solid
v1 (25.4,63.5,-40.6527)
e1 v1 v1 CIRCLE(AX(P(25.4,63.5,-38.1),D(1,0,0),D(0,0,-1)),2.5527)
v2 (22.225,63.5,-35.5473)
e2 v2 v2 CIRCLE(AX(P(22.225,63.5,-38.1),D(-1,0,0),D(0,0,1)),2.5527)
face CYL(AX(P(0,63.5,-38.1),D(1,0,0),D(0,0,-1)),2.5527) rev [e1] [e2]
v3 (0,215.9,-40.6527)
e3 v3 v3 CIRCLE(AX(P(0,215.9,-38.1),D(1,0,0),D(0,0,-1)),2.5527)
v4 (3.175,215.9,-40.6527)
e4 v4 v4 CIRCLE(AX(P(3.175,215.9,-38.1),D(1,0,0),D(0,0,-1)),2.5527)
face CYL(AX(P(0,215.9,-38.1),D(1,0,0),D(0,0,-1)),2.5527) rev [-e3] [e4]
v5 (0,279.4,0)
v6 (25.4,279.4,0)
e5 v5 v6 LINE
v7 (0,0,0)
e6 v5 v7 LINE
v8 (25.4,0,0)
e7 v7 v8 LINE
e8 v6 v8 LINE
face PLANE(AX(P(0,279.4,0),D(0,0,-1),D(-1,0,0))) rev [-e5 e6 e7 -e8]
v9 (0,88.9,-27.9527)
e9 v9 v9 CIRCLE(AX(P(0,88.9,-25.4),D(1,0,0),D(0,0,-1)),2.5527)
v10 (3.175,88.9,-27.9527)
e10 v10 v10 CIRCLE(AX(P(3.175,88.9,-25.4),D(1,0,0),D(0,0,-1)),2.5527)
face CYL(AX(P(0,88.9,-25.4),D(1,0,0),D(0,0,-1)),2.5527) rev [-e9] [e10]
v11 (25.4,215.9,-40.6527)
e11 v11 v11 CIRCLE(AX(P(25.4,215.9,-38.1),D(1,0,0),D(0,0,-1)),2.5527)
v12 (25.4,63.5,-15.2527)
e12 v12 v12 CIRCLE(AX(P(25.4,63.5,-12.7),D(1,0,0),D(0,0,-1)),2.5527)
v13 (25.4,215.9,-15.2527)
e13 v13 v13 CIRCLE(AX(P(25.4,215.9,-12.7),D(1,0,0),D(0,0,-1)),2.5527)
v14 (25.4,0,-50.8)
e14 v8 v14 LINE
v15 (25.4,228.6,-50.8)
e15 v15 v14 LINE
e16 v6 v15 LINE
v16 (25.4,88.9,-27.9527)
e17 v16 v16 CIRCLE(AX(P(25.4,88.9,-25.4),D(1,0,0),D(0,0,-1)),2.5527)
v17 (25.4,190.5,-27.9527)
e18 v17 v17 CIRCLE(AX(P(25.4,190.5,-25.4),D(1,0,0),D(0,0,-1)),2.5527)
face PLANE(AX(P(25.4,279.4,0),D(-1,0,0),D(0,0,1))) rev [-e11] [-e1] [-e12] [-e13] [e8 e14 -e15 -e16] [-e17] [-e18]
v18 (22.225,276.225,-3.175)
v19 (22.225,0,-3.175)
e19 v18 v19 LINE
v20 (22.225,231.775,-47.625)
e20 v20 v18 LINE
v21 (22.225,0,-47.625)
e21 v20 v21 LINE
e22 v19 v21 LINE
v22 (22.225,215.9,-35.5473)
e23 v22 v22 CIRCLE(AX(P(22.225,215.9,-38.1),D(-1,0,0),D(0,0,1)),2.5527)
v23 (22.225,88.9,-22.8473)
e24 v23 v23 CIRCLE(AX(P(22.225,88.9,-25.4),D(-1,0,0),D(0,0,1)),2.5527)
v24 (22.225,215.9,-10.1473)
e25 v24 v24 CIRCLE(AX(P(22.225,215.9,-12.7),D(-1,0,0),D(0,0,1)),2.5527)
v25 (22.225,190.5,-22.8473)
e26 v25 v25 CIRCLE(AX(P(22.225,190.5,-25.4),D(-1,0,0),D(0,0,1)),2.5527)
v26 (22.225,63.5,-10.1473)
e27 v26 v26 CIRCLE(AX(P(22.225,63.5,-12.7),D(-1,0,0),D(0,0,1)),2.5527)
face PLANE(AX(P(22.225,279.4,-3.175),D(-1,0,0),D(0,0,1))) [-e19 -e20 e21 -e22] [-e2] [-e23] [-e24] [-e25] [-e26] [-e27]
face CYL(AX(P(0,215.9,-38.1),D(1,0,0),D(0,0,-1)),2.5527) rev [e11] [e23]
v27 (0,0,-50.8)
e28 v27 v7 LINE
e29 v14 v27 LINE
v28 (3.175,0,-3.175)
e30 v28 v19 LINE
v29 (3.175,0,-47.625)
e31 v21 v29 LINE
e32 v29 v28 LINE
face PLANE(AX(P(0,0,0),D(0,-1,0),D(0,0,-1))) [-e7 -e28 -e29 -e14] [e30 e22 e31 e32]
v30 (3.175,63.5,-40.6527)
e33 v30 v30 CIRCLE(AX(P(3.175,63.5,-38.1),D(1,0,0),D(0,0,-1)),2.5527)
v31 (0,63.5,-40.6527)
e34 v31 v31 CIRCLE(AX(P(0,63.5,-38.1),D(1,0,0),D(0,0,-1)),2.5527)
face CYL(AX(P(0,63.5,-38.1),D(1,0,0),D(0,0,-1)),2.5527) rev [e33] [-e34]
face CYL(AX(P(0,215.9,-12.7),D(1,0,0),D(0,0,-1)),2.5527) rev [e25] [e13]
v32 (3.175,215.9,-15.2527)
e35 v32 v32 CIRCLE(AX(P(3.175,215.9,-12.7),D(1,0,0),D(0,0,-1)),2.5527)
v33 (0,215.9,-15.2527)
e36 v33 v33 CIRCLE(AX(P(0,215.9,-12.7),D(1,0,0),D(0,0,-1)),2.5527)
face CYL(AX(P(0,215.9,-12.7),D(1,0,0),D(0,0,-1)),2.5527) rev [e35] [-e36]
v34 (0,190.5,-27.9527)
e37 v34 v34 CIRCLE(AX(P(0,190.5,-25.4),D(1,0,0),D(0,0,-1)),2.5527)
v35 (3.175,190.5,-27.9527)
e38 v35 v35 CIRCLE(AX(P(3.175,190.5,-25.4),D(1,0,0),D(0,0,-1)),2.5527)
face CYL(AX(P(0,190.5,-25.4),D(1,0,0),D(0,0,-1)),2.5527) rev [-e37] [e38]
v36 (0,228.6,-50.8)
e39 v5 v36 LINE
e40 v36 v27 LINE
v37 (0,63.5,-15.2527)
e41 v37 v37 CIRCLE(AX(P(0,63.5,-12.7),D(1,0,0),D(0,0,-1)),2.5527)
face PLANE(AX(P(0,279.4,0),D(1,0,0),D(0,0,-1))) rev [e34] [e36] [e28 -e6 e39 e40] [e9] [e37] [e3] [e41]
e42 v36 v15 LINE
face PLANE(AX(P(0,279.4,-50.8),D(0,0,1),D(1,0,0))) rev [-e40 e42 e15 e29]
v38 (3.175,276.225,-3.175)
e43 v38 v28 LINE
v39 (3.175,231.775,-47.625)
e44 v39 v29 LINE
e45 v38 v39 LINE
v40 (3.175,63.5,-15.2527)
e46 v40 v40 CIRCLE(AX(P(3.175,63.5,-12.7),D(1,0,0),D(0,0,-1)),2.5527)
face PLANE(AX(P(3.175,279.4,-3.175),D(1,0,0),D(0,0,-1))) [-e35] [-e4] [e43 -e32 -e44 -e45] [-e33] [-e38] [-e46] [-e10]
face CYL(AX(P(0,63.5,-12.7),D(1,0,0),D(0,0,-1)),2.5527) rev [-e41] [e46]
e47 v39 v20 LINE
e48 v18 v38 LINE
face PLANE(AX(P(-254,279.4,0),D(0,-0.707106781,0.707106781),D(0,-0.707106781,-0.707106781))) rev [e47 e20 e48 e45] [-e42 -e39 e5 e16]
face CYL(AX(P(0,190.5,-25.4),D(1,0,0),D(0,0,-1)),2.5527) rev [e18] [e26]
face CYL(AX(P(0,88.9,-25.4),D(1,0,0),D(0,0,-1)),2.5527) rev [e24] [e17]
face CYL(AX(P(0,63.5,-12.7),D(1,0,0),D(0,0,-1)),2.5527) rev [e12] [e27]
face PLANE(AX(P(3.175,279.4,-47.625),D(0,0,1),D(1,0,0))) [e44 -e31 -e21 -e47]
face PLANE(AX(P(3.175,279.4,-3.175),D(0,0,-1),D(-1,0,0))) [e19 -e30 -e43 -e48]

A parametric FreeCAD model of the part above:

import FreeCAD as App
import Part
import Sketcher

V = App.Vector
Q = App.Units.Quantity


def add_polygon(sketch, points):
    """Adds a closed chain of lines whose ends are joined by coincident constraints."""
    first, n = sketch.GeometryCount, len(points)
    for a, b in zip(points, points[1:] + points[:1]):
        sketch.addGeometry(Part.LineSegment(App.Vector(*a, 0), App.Vector(*b, 0)), False)
    for i in range(n):
        sketch.addConstraint(Sketcher.Constraint("Coincident", first + i, 2, first + (i + 1) % n, 1))

doc = App.newDocument("Part")
body = doc.addObject("PartDesign::Body", "Body")

# Sketch on XZ plane
sketch1 = body.newObject("Sketcher::SketchObject", "Sketch")
sketch1.AttachmentSupport = (doc.getObject("XZ_Plane"), [""])
sketch1.MapMode = "FlatFace"
add_polygon(sketch1, [(0, -50.8), (0, 0), (25.4, 0), (25.4, -50.8)])  # lines 0-3
add_polygon(sketch1, [(22.225, -3.175), (3.175, -3.175), (3.175, -47.625), (22.225, -47.625)])  # lines 4-7
sketch1.addConstraint([
    Sketcher.Constraint("Vertical", 0),
    Sketcher.Constraint("Horizontal", 1),
    Sketcher.Constraint("Vertical", 2),
    Sketcher.Constraint("Horizontal", 3),
    Sketcher.Constraint("Horizontal", 4),
    Sketcher.Constraint("Vertical", 5),
    Sketcher.Constraint("Horizontal", 6),
    Sketcher.Constraint("Vertical", 7),
    Sketcher.Constraint("Coincident", 0, 2, -1, 1),
    Sketcher.Constraint("DistanceX", 1, 1, 1, 2, Q("1 in")),
    Sketcher.Constraint("DistanceY", 0, 1, 0, 2, Q("2 in")),
    Sketcher.Constraint("DistanceX", 4, 2, 4, 1, Q("0.75 in")),
    Sketcher.Constraint("DistanceY", 5, 2, 5, 1, Q("1.75 in")),
    Sketcher.Constraint("DistanceX", -1, 1, 4, 2, Q("0.125 in")),
    Sketcher.Constraint("DistanceY", 4, 2, -1, 1, Q("0.125 in")),
])
pad1 = body.newObject("PartDesign::Pad", "Pad")
pad1.Profile = sketch1
pad1.Length = Q("11 in")
pad1.Reversed = True

# Sketch on YZ plane
sketch2 = body.newObject("Sketcher::SketchObject", "Sketch001")
sketch2.AttachmentSupport = (doc.getObject("YZ_Plane"), [""])
sketch2.MapMode = "FlatFace"
sketch2.AttachmentOffset = App.Placement(V(0, 0, 1 * 25.4), App.Rotation())
add_polygon(sketch2, [(279.4, 0), (228.6, -50.8), (279.4, -50.8)])  # lines 0-2
sketch2.addConstraint([
    Sketcher.Constraint("Horizontal", 1),
    Sketcher.Constraint("Vertical", 2),
    Sketcher.Constraint("PointOnObject", 2, 2, -1),
    Sketcher.Constraint("Equal", 1, 2),
    Sketcher.Constraint("DistanceX", 1, 1, 1, 2, Q("2 in")),
    Sketcher.Constraint("DistanceX", -1, 1, 0, 2, Q("9 in")),
])
pocket1 = body.newObject("PartDesign::Pocket", "Pocket")
pocket1.Profile = sketch2
pocket1.Length = Q("11 in")

# Sketch on YZ plane
sketch3 = body.newObject("Sketcher::SketchObject", "Sketch002")
sketch3.AttachmentSupport = (doc.getObject("YZ_Plane"), [""])
sketch3.MapMode = "FlatFace"
sketch3.AttachmentOffset = App.Placement(V(0, 0, 1 * 25.4), App.Rotation())
sketch3.addGeometry([
    Part.Circle(V(215.9, -12.7, 0), V(0, 0, 1), 2.5527),  # 0
    Part.Circle(V(215.9, -38.1, 0), V(0, 0, 1), 2.5527),  # 1
    Part.Circle(V(190.5, -25.4, 0), V(0, 0, 1), 2.5527),  # 2
    Part.Circle(V(63.5, -12.7, 0), V(0, 0, 1), 2.5527),  # 3
    Part.Circle(V(63.5, -38.1, 0), V(0, 0, 1), 2.5527),  # 4
    Part.Circle(V(88.9, -25.4, 0), V(0, 0, 1), 2.5527),  # 5
], False)
sketch3.addConstraint([
    Sketcher.Constraint("Equal", 0, 1),
    Sketcher.Constraint("Equal", 1, 2),
    Sketcher.Constraint("Equal", 2, 3),
    Sketcher.Constraint("Equal", 3, 4),
    Sketcher.Constraint("Equal", 4, 5),
    Sketcher.Constraint("Horizontal", 0, 3, 3, 3),
    Sketcher.Constraint("Horizontal", 1, 3, 4, 3),
    Sketcher.Constraint("Horizontal", 2, 3, 5, 3),
    Sketcher.Constraint("Vertical", 0, 3, 1, 3),
    Sketcher.Constraint("Vertical", 3, 3, 4, 3),
    Sketcher.Constraint("Diameter", 0, Q("0.201 in")),
    Sketcher.Constraint("DistanceY", 2, 3, -1, 1, Q("1 in")),
    Sketcher.Constraint("DistanceY", 1, 3, 0, 3, Q("1 in")),
    Sketcher.Constraint("DistanceX", 2, 3, 0, 3, Q("1 in")),
    Sketcher.Constraint("DistanceX", 3, 3, 2, 3, Q("5 in")),
    Sketcher.Constraint("DistanceX", 3, 3, 5, 3, Q("1 in")),
    Sketcher.Constraint("DistanceX", -1, 1, 0, 3, Q("8.5 in")),
    Sketcher.Constraint("DistanceY", 0, 3, -1, 1, Q("0.5 in")),
])
pocket2 = body.newObject("PartDesign::Pocket", "Pocket001")
pocket2.Profile = sketch3
pocket2.Length = Q("1 in")

doc.recompute()
